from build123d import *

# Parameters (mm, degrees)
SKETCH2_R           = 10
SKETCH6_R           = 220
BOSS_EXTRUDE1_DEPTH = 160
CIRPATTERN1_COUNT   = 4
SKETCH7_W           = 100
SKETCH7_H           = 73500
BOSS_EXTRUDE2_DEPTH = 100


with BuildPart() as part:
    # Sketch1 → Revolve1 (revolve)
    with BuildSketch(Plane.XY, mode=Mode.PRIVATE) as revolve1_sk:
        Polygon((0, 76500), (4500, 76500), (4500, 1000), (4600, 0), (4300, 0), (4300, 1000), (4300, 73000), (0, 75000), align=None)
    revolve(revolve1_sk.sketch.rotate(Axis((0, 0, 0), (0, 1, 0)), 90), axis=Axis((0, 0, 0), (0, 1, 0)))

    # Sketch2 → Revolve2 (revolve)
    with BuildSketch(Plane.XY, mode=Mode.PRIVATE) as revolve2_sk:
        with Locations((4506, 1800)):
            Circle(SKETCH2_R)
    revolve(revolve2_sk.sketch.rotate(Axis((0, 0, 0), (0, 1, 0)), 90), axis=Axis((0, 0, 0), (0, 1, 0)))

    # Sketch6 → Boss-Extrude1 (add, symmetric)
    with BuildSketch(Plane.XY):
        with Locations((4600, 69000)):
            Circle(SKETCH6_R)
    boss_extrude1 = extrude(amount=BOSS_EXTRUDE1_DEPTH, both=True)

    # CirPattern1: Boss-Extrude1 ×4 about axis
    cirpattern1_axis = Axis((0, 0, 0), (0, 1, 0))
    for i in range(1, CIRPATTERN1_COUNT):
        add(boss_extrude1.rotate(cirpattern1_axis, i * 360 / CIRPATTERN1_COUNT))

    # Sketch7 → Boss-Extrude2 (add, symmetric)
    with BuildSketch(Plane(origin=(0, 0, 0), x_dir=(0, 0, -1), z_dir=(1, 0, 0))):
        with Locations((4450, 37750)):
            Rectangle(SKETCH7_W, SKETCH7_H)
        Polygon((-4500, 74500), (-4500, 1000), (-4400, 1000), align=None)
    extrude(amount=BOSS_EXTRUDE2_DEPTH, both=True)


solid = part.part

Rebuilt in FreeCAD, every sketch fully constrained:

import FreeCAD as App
import Part
import Sketcher

doc = App.newDocument("Part")
params = doc.addObject("Spreadsheet::Sheet", "Params")
for row, (alias, value) in enumerate([
    ("sketch1_width", "4500 mm"),
    ("sketch1_width2", "300 mm"),
    ("sketch1_height", "1500 mm"),
    ("sketch1_height2", "73000 mm"),
    ("sketch1_height3", "75500 mm"),
    ("revolution_angle", "360 deg"),
    ("sketch2_diameter", "20 mm"),
    ("revolution2_angle", "360 deg"),
    ("sketch3_diameter", "440 mm"),
    ("pad1_length", "320 mm"),
    ("sketch4_width", "73500 mm"),
    ("sketch4_height", "100 mm"),
    ("pad2_length", "200 mm"),
], start=1):
    params.set(f"A{row}", alias)
    params.set(f"B{row}", "=" + value)
    params.setAlias(f"B{row}", alias)

body = doc.addObject("PartDesign::Body", "Body")

# Sketch on XY plane
sketch1 = body.newObject("Sketcher::SketchObject", "Sketch")
sketch1.AttachmentSupport = (doc.getObject("XY_Plane"), [""])
sketch1.MapMode = "FlatFace"
sketch1.addGeometry(Part.LineSegment(App.Vector(4500, 76500, 0), App.Vector(0, 76500, 0)), False)
sketch1.addGeometry(Part.LineSegment(App.Vector(0, 76500, 0), App.Vector(0, 75000, 0)), False)
sketch1.addGeometry(Part.LineSegment(App.Vector(0, 75000, 0), App.Vector(4300, 73000, 0)), False)
sketch1.addGeometry(Part.LineSegment(App.Vector(4300, 73000, 0), App.Vector(4300, 0, 0)), False)
sketch1.addGeometry(Part.LineSegment(App.Vector(4300, 0, 0), App.Vector(4600, 0, 0)), False)
sketch1.addGeometry(Part.LineSegment(App.Vector(4600, 0, 0), App.Vector(4500, 1000, 0)), False)
sketch1.addGeometry(Part.LineSegment(App.Vector(4500, 1000, 0), App.Vector(4500, 76500, 0)), False)
sketch1.addConstraint(Sketcher.Constraint("Coincident", 0, 2, 1, 1))
sketch1.addConstraint(Sketcher.Constraint("Coincident", 1, 2, 2, 1))
sketch1.addConstraint(Sketcher.Constraint("Coincident", 2, 2, 3, 1))
sketch1.addConstraint(Sketcher.Constraint("Coincident", 3, 2, 4, 1))
sketch1.addConstraint(Sketcher.Constraint("Coincident", 4, 2, 5, 1))
sketch1.addConstraint(Sketcher.Constraint("Coincident", 5, 2, 6, 1))
sketch1.addConstraint(Sketcher.Constraint("Coincident", 6, 2, 0, 1))
sketch1.addConstraint(Sketcher.Constraint("Horizontal", 0))
sketch1.addConstraint(Sketcher.Constraint("Vertical", 1))
sketch1.addConstraint(Sketcher.Constraint("Vertical", 3))
sketch1.addConstraint(Sketcher.Constraint("Horizontal", 4))
sketch1.addConstraint(Sketcher.Constraint("Vertical", 6))
sketch1.addConstraint(Sketcher.Constraint("PointOnObject", 0, 2, -2))
sketch1.addConstraint(Sketcher.Constraint("PointOnObject", 3, 2, -1))
sketch1.addConstraint(Sketcher.Constraint("DistanceX", 0, 2, 0, 1, 4500.0))
sketch1.addConstraint(Sketcher.Constraint("DistanceX", 4, 1, 4, 2, 300.0))
sketch1.addConstraint(Sketcher.Constraint("DistanceY", 1, 2, 1, 1, 1500.0))
sketch1.addConstraint(Sketcher.Constraint("DistanceY", 3, 2, 3, 1, 73000.0))
sketch1.addConstraint(Sketcher.Constraint("DistanceY", 6, 1, 6, 2, 75500.0))
sketch1.addConstraint(Sketcher.Constraint("DistanceY", -1, 1, 0, 2, 76500.0))
sketch1.addConstraint(Sketcher.Constraint("DistanceX", -1, 1, 2, 2, 4300.0))
sketch1.setExpression("Constraints[14]", "Params.sketch1_width")
sketch1.setExpression("Constraints[15]", "Params.sketch1_width2")
sketch1.setExpression("Constraints[16]", "Params.sketch1_height")
sketch1.setExpression("Constraints[17]", "Params.sketch1_height2")
sketch1.setExpression("Constraints[18]", "Params.sketch1_height3")
revolution = body.newObject("PartDesign::Revolution", "Revolution")
revolution.Profile = sketch1
revolution.ReferenceAxis = (sketch1, ["V_Axis"])
revolution.setExpression("Angle", "Params.revolution_angle")

# Sketch on XY plane
sketch2 = body.newObject("Sketcher::SketchObject", "Sketch001")
sketch2.AttachmentSupport = (doc.getObject("XY_Plane"), [""])
sketch2.MapMode = "FlatFace"
sketch2.addGeometry(Part.Circle(App.Vector(4506, 1800, 0), App.Vector(0, 0, 1), 10), False)
sketch2.addConstraint(Sketcher.Constraint("Diameter", 0, 20.0))
sketch2.addConstraint(Sketcher.Constraint("DistanceX", -1, 1, 0, 3, 4506.0))
sketch2.addConstraint(Sketcher.Constraint("DistanceY", -1, 1, 0, 3, 1800.0))
sketch2.setExpression("Constraints[0]", "Params.sketch2_diameter")
revolution2 = body.newObject("PartDesign::Revolution", "Revolution001")
revolution2.Profile = sketch2
revolution2.ReferenceAxis = (sketch2, ["V_Axis"])
revolution2.setExpression("Angle", "Params.revolution2_angle")

# Sketch on XY plane
sketch3 = body.newObject("Sketcher::SketchObject", "Sketch002")
sketch3.AttachmentSupport = (doc.getObject("XY_Plane"), [""])
sketch3.MapMode = "FlatFace"
sketch3.addGeometry(Part.Circle(App.Vector(4600, 69000, 0), App.Vector(0, 0, 1), 220), False)
sketch3.addConstraint(Sketcher.Constraint("Diameter", 0, 440.0))
sketch3.addConstraint(Sketcher.Constraint("DistanceX", -1, 1, 0, 3, 4600.0))
sketch3.addConstraint(Sketcher.Constraint("DistanceY", -1, 1, 0, 3, 69000.0))
sketch3.setExpression("Constraints[0]", "Params.sketch3_diameter")
pad1 = body.newObject("PartDesign::Pad", "Pad")
pad1.Profile = sketch3
pad1.setExpression("Length", "Params.pad1_length")
pad1.Midplane = True
doc.recompute()

polarpattern = body.newObject("PartDesign::PolarPattern", "PolarPattern")
polarpattern.Originals = [pad1]
polarpattern.Axis = (doc.getObject("Y_Axis"), [""])
polarpattern.Angle = 360
polarpattern.Occurrences = 4
body.Tip = polarpattern

# Sketch on YZ plane
sketch4 = body.newObject("Sketcher::SketchObject", "Sketch003")
sketch4.AttachmentSupport = (doc.getObject("YZ_Plane"), [""])
sketch4.MapMode = "FlatFace"
sketch4.addGeometry(Part.LineSegment(App.Vector(74500, -4400, 0), App.Vector(1000, -4400, 0)), False)
sketch4.addGeometry(Part.LineSegment(App.Vector(1000, -4400, 0), App.Vector(1000, -4500, 0)), False)
sketch4.addGeometry(Part.LineSegment(App.Vector(1000, -4500, 0), App.Vector(74500, -4500, 0)), False)
sketch4.addGeometry(Part.LineSegment(App.Vector(74500, -4500, 0), App.Vector(74500, -4400, 0)), False)
sketch4.addGeometry(Part.LineSegment(App.Vector(74500, 4500, 0), App.Vector(1000, 4500, 0)), False)
sketch4.addGeometry(Part.LineSegment(App.Vector(1000, 4500, 0), App.Vector(1000, 4400, 0)), False)
sketch4.addGeometry(Part.LineSegment(App.Vector(1000, 4400, 0), App.Vector(74500, 4500, 0)), False)
sketch4.addConstraint(Sketcher.Constraint("Coincident", 0, 2, 1, 1))
sketch4.addConstraint(Sketcher.Constraint("Coincident", 1, 2, 2, 1))
sketch4.addConstraint(Sketcher.Constraint("Coincident", 2, 2, 3, 1))
sketch4.addConstraint(Sketcher.Constraint("Coincident", 3, 2, 0, 1))
sketch4.addConstraint(Sketcher.Constraint("Coincident", 4, 2, 5, 1))
sketch4.addConstraint(Sketcher.Constraint("Coincident", 5, 2, 6, 1))
sketch4.addConstraint(Sketcher.Constraint("Coincident", 6, 2, 4, 1))
sketch4.addConstraint(Sketcher.Constraint("Horizontal", 0))
sketch4.addConstraint(Sketcher.Constraint("Vertical", 1))
sketch4.addConstraint(Sketcher.Constraint("Horizontal", 2))
sketch4.addConstraint(Sketcher.Constraint("Vertical", 3))
sketch4.addConstraint(Sketcher.Constraint("Horizontal", 4))
sketch4.addConstraint(Sketcher.Constraint("Vertical", 5))
sketch4.addConstraint(Sketcher.Constraint("Symmetric", 1, 2, 4, 2, -1))
sketch4.addConstraint(Sketcher.Constraint("Vertical", 3, 2, 6, 2))
sketch4.addConstraint(Sketcher.Constraint("Equal", 3, 5))
sketch4.addConstraint(Sketcher.Constraint("DistanceX", 0, 2, 0, 1, 73500.0))
sketch4.addConstraint(Sketcher.Constraint("DistanceY", 1, 2, 1, 1, 100.0))
sketch4.addConstraint(Sketcher.Constraint("DistanceX", -1, 1, 0, 2, 1000.0))
sketch4.addConstraint(Sketcher.Constraint("DistanceY", 0, 2, -1, 1, 4400.0))
sketch4.setExpression("Constraints[16]", "Params.sketch4_width")
sketch4.setExpression("Constraints[17]", "Params.sketch4_height")
pad2 = body.newObject("PartDesign::Pad", "Pad001")
pad2.Profile = sketch4
pad2.setExpression("Length", "Params.pad2_length")
pad2.Midplane = True

doc.recompute()
